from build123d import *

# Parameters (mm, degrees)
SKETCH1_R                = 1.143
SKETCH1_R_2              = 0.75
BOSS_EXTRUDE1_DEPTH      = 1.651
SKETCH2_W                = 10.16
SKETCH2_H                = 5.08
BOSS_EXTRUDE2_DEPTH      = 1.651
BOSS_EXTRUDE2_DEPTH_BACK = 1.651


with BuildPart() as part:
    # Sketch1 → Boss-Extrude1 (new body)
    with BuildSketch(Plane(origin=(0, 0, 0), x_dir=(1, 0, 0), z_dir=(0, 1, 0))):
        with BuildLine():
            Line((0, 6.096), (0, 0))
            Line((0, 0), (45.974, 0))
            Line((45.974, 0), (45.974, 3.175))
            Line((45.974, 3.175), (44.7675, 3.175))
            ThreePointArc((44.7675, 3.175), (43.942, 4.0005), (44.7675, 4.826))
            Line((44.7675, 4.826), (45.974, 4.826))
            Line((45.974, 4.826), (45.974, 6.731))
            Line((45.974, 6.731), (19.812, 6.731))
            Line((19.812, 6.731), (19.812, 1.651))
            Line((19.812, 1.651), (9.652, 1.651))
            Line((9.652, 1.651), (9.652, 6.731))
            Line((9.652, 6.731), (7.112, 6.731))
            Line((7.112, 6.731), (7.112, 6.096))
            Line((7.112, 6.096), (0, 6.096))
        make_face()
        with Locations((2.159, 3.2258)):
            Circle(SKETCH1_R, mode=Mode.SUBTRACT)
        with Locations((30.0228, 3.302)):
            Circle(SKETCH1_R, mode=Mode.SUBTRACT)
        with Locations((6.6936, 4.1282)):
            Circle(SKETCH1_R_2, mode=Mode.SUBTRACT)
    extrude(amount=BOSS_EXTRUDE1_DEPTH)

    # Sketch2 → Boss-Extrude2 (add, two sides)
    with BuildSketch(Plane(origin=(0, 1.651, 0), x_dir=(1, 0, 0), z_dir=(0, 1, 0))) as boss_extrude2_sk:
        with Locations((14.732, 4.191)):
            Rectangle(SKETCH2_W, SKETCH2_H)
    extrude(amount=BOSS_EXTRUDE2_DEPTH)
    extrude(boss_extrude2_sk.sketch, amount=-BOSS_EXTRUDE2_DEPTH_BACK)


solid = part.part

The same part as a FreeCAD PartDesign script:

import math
import FreeCAD as App
import Part
import Sketcher
Q = App.Units.Quantity


def add_polygon(sketch, points):
    """Adds a closed chain of lines whose ends are joined by coincident constraints."""
    first, n = sketch.GeometryCount, len(points)
    for a, b in zip(points, points[1:] + points[:1]):
        sketch.addGeometry(Part.LineSegment(App.Vector(*a, 0), App.Vector(*b, 0)), False)
    for i in range(n):
        sketch.addConstraint(Sketcher.Constraint("Coincident", first + i, 2, first + (i + 1) % n, 1))

doc = App.newDocument("Part")
body = doc.addObject("PartDesign::Body", "Body")

# Sketch on XZ plane
sketch1 = body.newObject("Sketcher::SketchObject", "Sketch")
sketch1.AttachmentSupport = (doc.getObject("XZ_Plane"), [""])
sketch1.MapMode = "FlatFace"
sketch1.addGeometry(Part.LineSegment(App.Vector(0, -6.096, 0), App.Vector(0, 0, 0)), False)
sketch1.addGeometry(Part.LineSegment(App.Vector(0, 0, 0), App.Vector(45.974, 0, 0)), False)
sketch1.addGeometry(Part.LineSegment(App.Vector(45.974, 0, 0), App.Vector(45.974, -3.175, 0)), False)
sketch1.addGeometry(Part.LineSegment(App.Vector(45.974, -3.175, 0), App.Vector(44.7675, -3.175, 0)), False)
sketch1.addGeometry(Part.ArcOfCircle(Part.Circle(App.Vector(44.7675, -4.0005, 0), App.Vector(0, 0, 1), 0.8255), math.radians(90), math.radians(270)), False)
sketch1.addGeometry(Part.LineSegment(App.Vector(44.7675, -4.826, 0), App.Vector(45.974, -4.826, 0)), False)
sketch1.addGeometry(Part.LineSegment(App.Vector(45.974, -4.826, 0), App.Vector(45.974, -6.731, 0)), False)
sketch1.addGeometry(Part.LineSegment(App.Vector(45.974, -6.731, 0), App.Vector(19.812, -6.731, 0)), False)
sketch1.addGeometry(Part.LineSegment(App.Vector(19.812, -6.731, 0), App.Vector(19.812, -1.651, 0)), False)
sketch1.addGeometry(Part.LineSegment(App.Vector(19.812, -1.651, 0), App.Vector(9.652, -1.651, 0)), False)
sketch1.addGeometry(Part.LineSegment(App.Vector(9.652, -1.651, 0), App.Vector(9.652, -6.731, 0)), False)
sketch1.addGeometry(Part.LineSegment(App.Vector(9.652, -6.731, 0), App.Vector(7.112, -6.731, 0)), False)
sketch1.addGeometry(Part.LineSegment(App.Vector(7.112, -6.731, 0), App.Vector(7.112, -6.096, 0)), False)
sketch1.addGeometry(Part.LineSegment(App.Vector(7.112, -6.096, 0), App.Vector(0, -6.096, 0)), False)
sketch1.addGeometry(Part.Circle(App.Vector(2.159, -3.2258, 0), App.Vector(0, 0, 1), 1.143), False)
sketch1.addGeometry(Part.Circle(App.Vector(30.0228, -3.302, 0), App.Vector(0, 0, 1), 1.143), False)
sketch1.addGeometry(Part.Circle(App.Vector(6.6936, -4.1282, 0), App.Vector(0, 0, 1), 0.75), False)
sketch1.addConstraint(Sketcher.Constraint("Coincident", 0, 2, 1, 1))
sketch1.addConstraint(Sketcher.Constraint("Coincident", 1, 2, 2, 1))
sketch1.addConstraint(Sketcher.Constraint("Coincident", 2, 2, 3, 1))
sketch1.addConstraint(Sketcher.Constraint("Tangent", 3, 2, 4, 1))
sketch1.addConstraint(Sketcher.Constraint("Tangent", 4, 2, 5, 1))
sketch1.addConstraint(Sketcher.Constraint("Coincident", 5, 2, 6, 1))
sketch1.addConstraint(Sketcher.Constraint("Coincident", 6, 2, 7, 1))
sketch1.addConstraint(Sketcher.Constraint("Coincident", 7, 2, 8, 1))
sketch1.addConstraint(Sketcher.Constraint("Coincident", 8, 2, 9, 1))
sketch1.addConstraint(Sketcher.Constraint("Coincident", 9, 2, 10, 1))
sketch1.addConstraint(Sketcher.Constraint("Coincident", 10, 2, 11, 1))
sketch1.addConstraint(Sketcher.Constraint("Coincident", 11, 2, 12, 1))
sketch1.addConstraint(Sketcher.Constraint("Coincident", 12, 2, 13, 1))
sketch1.addConstraint(Sketcher.Constraint("Coincident", 13, 2, 0, 1))
sketch1.addConstraint(Sketcher.Constraint("Vertical", 0))
sketch1.addConstraint(Sketcher.Constraint("Horizontal", 1))
sketch1.addConstraint(Sketcher.Constraint("Vertical", 2))
sketch1.addConstraint(Sketcher.Constraint("Horizontal", 3))
sketch1.addConstraint(Sketcher.Constraint("Horizontal", 5))
sketch1.addConstraint(Sketcher.Constraint("Vertical", 6))
sketch1.addConstraint(Sketcher.Constraint("Horizontal", 7))
sketch1.addConstraint(Sketcher.Constraint("Vertical", 8))
sketch1.addConstraint(Sketcher.Constraint("Horizontal", 9))
sketch1.addConstraint(Sketcher.Constraint("Vertical", 10))
sketch1.addConstraint(Sketcher.Constraint("Horizontal", 11))
sketch1.addConstraint(Sketcher.Constraint("Vertical", 12))
sketch1.addConstraint(Sketcher.Constraint("Horizontal", 13))
sketch1.addConstraint(Sketcher.Constraint("Coincident", 0, 2, -1, 1))
sketch1.addConstraint(Sketcher.Constraint("Equal", 14, 15))
sketch1.addConstraint(Sketcher.Constraint("Horizontal", 7, 2, 10, 2))
sketch1.addConstraint(Sketcher.Constraint("Vertical", 2, 2, 5, 2))
sketch1.addConstraint(Sketcher.Constraint("Diameter", 14, Q("0.09 in")))
sketch1.addConstraint(Sketcher.Constraint("DistanceX", 9, 2, 9, 1, Q("0.4 in")))
sketch1.addConstraint(Sketcher.Constraint("DistanceX", 11, 2, 11, 1, Q("0.1 in")))
sketch1.addConstraint(Sketcher.Constraint("DistanceY", 8, 1, 8, 2, Q("0.2 in")))
sketch1.addConstraint(Sketcher.Constraint("DistanceX", 1, 1, 1, 2, Q("1.81 in")))
sketch1.addConstraint(Sketcher.Constraint("DistanceX", 7, 2, 7, 1, Q("1.03 in")))
sketch1.addConstraint(Sketcher.Constraint("DistanceY", 0, 1, 0, 2, Q("0.24 in")))
sketch1.addConstraint(Sketcher.Constraint("Radius", 4, Q("0.0325 in")))
sketch1.addConstraint(Sketcher.Constraint("Diameter", 16, 1.5))
sketch1.addConstraint(Sketcher.Constraint("DistanceY", 2, 2, 2, 1, Q("0.125 in")))
sketch1.addConstraint(Sketcher.Constraint("DistanceY", 6, 2, 6, 1, Q("0.075 in")))
sketch1.addConstraint(Sketcher.Constraint("DistanceY", 15, 3, -1, 1, Q("0.13 in")))
sketch1.addConstraint(Sketcher.Constraint("DistanceX", 3, 2, 3, 1, Q("0.0475 in")))
sketch1.addConstraint(Sketcher.Constraint("DistanceX", -1, 1, 14, 3, Q("0.085 in")))
sketch1.addConstraint(Sketcher.Constraint("DistanceY", 14, 3, -1, 1, Q("0.127 in")))
sketch1.addConstraint(Sketcher.Constraint("DistanceX", -1, 1, 15, 3, Q("1.182 in")))
sketch1.addConstraint(Sketcher.Constraint("DistanceX", -1, 1, 16, 3, 6.6936))
sketch1.addConstraint(Sketcher.Constraint("DistanceY", 16, 3, -1, 1, 4.1282))
pad1 = body.newObject("PartDesign::Pad", "Pad")
pad1.Profile = sketch1
pad1.Length = Q("0.065 in")
pad1.Reversed = True

# Sketch on XZ plane
sketch2 = body.newObject("Sketcher::SketchObject", "Sketch001")
sketch2.AttachmentSupport = (doc.getObject("XZ_Plane"), [""])
sketch2.MapMode = "FlatFace"
sketch2.AttachmentOffset = App.Placement(App.Vector(0, 0, -0.065 * 25.4), App.Rotation())
add_polygon(sketch2, [(9.652, -6.731), (9.652, -1.651), (19.812, -1.651), (19.812, -6.731)])  # lines 0-3
sketch2.addConstraint(Sketcher.Constraint("Vertical", 0))
sketch2.addConstraint(Sketcher.Constraint("Horizontal", 1))
sketch2.addConstraint(Sketcher.Constraint("Vertical", 2))
sketch2.addConstraint(Sketcher.Constraint("Horizontal", 3))
sketch2.addConstraint(Sketcher.Constraint("DistanceX", 1, 1, 1, 2, Q("0.4 in")))
sketch2.addConstraint(Sketcher.Constraint("DistanceY", 0, 1, 0, 2, Q("0.2 in")))
sketch2.addConstraint(Sketcher.Constraint("DistanceX", -1, 1, 0, 2, Q("0.38 in")))
sketch2.addConstraint(Sketcher.Constraint("DistanceY", 0, 2, -1, 1, Q("0.065 in")))
pad2 = body.newObject("PartDesign::Pad", "Pad001")
pad2.Profile = sketch2
pad2.Type = "TwoLengths"
pad2.Length = Q("0.065 in")
pad2.Length2 = Q("0.065 in")
pad2.Reversed = True

doc.recompute()
